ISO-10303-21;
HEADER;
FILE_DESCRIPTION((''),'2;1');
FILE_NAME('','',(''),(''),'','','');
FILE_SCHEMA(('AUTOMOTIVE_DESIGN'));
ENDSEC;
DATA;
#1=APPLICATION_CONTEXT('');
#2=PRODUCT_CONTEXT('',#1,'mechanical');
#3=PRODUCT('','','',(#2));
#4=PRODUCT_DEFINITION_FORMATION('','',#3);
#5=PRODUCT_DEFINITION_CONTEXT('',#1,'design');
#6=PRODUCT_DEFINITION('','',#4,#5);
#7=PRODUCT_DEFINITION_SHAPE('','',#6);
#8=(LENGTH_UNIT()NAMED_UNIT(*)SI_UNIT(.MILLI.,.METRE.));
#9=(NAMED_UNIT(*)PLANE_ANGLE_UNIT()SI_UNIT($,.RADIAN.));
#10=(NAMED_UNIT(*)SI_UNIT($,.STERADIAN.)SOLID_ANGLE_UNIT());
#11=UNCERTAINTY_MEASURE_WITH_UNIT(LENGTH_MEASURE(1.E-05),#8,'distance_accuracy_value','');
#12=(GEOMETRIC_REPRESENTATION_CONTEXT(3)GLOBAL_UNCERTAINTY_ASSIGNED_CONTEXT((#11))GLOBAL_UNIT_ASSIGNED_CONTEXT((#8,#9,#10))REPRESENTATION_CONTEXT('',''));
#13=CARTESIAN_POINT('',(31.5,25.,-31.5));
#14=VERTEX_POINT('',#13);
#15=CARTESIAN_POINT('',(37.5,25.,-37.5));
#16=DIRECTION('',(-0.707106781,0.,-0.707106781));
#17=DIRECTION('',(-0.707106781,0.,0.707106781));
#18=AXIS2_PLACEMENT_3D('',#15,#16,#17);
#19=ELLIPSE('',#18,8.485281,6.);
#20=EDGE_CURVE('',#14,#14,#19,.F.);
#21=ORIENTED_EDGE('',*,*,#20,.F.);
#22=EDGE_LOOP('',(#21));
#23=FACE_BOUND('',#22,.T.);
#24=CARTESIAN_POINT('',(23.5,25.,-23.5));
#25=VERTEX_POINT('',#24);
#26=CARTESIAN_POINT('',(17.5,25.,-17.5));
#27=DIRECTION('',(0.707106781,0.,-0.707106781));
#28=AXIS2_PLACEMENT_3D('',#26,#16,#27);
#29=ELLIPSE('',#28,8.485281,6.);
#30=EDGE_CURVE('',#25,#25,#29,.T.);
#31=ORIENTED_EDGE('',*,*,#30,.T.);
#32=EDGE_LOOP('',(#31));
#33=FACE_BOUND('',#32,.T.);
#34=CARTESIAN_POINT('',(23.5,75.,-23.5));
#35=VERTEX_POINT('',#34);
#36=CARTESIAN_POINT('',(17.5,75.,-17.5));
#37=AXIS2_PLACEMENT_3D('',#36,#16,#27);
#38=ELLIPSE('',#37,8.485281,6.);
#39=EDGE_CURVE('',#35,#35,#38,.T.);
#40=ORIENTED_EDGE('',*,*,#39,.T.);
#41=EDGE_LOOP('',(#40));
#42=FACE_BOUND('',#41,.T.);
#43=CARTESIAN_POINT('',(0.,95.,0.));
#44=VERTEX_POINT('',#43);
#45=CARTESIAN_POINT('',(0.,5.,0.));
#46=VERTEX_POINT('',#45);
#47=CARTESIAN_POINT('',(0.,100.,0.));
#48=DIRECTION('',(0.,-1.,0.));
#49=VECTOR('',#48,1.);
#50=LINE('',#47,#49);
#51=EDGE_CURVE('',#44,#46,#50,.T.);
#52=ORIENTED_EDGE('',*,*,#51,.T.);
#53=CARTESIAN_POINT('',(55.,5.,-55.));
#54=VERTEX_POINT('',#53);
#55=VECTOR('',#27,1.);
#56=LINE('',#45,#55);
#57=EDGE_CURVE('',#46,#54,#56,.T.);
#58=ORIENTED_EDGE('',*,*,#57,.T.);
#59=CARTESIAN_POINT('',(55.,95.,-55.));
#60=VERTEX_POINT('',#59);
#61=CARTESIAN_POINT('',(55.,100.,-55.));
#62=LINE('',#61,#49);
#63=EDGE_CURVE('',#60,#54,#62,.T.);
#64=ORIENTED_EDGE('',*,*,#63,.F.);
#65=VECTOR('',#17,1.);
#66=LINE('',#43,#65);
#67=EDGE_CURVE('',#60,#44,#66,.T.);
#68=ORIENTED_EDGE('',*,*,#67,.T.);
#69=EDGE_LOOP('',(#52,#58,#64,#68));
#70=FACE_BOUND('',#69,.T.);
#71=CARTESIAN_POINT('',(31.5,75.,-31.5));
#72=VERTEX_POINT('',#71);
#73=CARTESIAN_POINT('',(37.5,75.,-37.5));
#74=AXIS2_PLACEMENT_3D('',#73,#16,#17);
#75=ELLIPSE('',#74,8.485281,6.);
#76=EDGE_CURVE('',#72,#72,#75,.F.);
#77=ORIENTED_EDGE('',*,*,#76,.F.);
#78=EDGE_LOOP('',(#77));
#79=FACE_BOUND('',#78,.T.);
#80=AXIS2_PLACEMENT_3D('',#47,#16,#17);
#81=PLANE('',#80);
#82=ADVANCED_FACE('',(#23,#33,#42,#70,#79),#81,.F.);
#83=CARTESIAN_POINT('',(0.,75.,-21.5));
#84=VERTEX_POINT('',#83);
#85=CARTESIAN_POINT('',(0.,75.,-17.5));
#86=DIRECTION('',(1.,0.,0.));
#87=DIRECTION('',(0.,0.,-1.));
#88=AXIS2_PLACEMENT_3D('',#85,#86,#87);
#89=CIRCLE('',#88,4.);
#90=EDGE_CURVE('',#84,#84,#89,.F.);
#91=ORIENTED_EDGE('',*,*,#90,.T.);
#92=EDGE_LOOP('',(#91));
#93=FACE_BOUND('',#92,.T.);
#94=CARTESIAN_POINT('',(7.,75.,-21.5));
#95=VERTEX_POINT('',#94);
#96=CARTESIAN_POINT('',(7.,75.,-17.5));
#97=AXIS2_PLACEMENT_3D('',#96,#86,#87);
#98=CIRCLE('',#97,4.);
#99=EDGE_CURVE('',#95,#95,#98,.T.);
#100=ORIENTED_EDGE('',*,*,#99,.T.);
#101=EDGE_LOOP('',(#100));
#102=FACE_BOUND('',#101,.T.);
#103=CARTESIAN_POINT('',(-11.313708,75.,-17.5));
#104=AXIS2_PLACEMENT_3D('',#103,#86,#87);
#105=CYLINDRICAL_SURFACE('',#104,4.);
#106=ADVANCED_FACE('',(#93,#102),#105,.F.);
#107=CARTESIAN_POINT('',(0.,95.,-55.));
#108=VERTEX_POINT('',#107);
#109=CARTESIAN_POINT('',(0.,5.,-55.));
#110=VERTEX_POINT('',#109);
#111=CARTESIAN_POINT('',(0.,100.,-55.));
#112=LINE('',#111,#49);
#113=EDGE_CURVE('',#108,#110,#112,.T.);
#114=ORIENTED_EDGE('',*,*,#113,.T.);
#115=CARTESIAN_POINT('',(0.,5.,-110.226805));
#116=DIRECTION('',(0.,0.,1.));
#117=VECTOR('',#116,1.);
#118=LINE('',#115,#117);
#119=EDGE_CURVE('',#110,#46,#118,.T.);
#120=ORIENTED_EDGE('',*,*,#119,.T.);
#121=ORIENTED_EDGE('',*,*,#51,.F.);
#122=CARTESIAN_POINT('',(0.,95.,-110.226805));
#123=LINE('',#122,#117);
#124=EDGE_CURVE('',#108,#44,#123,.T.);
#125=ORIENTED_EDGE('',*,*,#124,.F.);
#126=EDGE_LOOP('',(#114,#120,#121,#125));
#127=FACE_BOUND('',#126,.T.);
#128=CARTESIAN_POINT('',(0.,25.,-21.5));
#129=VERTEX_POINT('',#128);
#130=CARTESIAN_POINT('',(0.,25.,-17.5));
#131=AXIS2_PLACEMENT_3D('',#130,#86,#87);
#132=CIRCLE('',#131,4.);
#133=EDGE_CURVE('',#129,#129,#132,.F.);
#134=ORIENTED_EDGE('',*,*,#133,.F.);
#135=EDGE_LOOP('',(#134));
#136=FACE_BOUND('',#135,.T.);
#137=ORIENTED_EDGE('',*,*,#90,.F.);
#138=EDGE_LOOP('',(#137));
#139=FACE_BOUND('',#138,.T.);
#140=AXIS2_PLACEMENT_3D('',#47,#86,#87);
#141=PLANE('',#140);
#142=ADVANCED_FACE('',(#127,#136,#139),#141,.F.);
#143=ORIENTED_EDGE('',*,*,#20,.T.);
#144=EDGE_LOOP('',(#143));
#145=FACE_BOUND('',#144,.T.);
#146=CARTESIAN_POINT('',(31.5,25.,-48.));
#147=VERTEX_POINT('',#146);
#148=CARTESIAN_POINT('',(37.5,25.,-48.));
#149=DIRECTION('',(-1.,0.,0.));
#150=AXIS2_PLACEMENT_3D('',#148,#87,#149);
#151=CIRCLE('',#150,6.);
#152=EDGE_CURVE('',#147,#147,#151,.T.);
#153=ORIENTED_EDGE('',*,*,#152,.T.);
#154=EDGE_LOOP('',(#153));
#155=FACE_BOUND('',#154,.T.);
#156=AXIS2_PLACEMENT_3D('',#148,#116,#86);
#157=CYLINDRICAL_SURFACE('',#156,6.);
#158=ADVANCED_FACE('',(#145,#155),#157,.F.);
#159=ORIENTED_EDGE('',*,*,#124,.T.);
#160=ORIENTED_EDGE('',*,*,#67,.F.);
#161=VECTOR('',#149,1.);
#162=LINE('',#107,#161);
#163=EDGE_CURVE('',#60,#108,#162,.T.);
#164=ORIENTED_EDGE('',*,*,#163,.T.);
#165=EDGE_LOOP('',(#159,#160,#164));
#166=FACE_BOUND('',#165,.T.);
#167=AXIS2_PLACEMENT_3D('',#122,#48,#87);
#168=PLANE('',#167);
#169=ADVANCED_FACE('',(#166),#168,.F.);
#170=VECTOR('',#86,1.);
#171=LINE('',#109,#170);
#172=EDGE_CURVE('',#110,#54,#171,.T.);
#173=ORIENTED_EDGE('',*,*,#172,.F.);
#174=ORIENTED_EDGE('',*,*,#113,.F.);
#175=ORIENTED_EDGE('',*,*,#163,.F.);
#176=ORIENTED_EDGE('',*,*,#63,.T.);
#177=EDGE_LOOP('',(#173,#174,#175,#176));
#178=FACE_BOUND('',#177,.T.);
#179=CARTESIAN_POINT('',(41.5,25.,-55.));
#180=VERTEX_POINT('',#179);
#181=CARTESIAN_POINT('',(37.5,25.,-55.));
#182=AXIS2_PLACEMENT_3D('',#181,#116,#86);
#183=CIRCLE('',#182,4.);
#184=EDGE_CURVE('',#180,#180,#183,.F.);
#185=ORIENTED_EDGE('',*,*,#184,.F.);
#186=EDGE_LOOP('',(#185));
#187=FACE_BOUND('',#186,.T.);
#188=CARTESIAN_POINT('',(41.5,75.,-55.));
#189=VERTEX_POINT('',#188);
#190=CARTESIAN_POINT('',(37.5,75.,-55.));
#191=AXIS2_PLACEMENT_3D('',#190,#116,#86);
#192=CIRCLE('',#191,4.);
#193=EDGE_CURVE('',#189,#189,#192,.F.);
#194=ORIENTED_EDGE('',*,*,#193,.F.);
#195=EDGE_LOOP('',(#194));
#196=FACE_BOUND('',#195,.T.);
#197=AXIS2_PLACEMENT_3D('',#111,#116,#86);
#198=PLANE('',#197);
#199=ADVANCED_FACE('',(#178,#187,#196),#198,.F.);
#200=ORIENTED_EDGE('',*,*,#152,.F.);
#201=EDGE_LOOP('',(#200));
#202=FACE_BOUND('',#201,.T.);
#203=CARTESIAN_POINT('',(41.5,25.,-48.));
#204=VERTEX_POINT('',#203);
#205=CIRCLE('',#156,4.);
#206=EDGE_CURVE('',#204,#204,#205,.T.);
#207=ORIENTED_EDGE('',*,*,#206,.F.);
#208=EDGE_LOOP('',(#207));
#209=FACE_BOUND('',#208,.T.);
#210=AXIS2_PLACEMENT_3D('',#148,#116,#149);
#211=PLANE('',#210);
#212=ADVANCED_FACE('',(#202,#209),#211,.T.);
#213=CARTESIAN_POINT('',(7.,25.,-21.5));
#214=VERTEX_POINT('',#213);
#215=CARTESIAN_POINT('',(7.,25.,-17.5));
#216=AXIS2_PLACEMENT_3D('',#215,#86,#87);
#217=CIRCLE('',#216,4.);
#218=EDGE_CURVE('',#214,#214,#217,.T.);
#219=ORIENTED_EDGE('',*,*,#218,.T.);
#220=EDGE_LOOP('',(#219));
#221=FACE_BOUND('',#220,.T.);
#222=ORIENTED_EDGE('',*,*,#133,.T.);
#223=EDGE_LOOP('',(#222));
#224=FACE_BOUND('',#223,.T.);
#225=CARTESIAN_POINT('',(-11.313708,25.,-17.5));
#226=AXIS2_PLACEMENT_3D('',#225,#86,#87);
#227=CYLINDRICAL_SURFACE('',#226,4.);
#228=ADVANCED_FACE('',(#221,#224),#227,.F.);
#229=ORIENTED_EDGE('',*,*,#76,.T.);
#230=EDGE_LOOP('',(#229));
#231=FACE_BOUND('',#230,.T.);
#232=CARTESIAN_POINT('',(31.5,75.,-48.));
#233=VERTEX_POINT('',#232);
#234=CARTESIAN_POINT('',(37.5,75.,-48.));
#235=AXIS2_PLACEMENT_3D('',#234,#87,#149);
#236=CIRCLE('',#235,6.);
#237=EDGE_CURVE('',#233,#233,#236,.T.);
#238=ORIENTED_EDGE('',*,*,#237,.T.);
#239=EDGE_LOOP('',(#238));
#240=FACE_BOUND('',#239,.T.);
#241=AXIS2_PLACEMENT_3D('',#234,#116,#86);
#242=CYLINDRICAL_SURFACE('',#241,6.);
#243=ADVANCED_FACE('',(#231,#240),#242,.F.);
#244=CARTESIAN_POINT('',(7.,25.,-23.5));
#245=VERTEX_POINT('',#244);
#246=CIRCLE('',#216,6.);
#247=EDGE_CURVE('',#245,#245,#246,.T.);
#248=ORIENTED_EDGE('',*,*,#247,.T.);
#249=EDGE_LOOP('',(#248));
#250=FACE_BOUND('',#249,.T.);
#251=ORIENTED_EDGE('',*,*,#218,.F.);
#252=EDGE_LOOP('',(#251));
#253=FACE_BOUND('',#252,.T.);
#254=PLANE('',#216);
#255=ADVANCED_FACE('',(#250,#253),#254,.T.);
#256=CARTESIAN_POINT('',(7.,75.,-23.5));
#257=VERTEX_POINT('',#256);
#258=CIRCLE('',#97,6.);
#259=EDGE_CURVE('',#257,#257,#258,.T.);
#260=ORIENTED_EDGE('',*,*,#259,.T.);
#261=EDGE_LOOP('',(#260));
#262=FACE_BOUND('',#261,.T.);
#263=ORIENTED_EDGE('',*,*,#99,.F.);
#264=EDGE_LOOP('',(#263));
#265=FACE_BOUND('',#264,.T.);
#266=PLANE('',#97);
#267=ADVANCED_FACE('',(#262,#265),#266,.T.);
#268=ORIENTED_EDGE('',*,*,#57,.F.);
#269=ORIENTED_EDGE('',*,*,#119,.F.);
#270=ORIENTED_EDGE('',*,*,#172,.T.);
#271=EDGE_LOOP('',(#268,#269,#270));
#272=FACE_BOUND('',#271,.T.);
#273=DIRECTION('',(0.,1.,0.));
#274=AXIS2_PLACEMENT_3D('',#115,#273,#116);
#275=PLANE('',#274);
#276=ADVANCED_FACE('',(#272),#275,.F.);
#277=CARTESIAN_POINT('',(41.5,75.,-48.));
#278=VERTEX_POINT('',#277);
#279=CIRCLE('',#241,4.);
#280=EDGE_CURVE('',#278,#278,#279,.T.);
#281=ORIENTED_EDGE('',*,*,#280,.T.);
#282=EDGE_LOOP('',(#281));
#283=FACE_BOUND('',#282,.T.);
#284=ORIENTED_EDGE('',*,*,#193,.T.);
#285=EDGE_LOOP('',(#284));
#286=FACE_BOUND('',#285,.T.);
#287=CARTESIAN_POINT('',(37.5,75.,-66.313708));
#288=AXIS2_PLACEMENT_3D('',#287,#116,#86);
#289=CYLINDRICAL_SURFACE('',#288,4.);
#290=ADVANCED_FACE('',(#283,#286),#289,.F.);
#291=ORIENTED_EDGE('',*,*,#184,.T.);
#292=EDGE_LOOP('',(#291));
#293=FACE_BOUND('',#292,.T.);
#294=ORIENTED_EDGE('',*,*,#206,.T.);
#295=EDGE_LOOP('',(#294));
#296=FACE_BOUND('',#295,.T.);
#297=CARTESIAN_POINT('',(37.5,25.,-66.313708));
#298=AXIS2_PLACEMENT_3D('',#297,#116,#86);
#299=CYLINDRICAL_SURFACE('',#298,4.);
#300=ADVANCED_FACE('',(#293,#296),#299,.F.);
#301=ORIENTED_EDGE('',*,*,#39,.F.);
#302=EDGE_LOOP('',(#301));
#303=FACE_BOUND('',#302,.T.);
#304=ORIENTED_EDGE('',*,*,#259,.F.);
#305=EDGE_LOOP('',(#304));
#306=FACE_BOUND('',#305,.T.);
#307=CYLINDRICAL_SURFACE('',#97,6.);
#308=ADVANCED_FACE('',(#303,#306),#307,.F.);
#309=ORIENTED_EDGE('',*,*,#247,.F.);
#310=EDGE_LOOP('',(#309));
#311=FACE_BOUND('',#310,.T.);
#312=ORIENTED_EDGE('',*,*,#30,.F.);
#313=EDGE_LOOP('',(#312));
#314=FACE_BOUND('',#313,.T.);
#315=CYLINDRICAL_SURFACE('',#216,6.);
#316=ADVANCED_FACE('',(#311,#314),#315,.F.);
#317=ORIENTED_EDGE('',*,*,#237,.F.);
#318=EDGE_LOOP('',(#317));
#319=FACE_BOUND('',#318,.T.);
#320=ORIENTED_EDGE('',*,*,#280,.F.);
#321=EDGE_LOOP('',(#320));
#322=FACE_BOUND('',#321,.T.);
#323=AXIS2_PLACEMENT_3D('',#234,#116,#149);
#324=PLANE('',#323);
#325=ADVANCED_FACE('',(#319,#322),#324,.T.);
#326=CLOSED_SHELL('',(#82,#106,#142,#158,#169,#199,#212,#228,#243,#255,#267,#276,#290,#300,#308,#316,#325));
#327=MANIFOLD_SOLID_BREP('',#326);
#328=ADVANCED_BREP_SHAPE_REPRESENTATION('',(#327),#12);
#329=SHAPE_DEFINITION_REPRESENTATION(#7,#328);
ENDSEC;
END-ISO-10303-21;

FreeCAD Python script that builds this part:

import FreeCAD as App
import Part
import Sketcher
Q = App.Units.Quantity

doc = App.newDocument("Part")
body = doc.addObject("PartDesign::Body", "Body")

# Sketch on XZ plane
sketch1 = body.newObject("Sketcher::SketchObject", "Sketch")
sketch1.AttachmentSupport = (doc.getObject("XZ_Plane"), [""])
sketch1.MapMode = "FlatFace"
sketch1.addGeometry([
    Part.LineSegment(App.Vector(0, 0, 0), App.Vector(55, -55, 0)),
    Part.LineSegment(App.Vector(55, -55, 0), App.Vector(0, -55, 0)),
    Part.LineSegment(App.Vector(0, -55, 0), App.Vector(0, 0, 0)),
], False)
sketch1.addConstraint([
    Sketcher.Constraint("Coincident", 0, 2, 1, 1),
    Sketcher.Constraint("Coincident", 1, 2, 2, 1),
    Sketcher.Constraint("Coincident", 2, 2, 0, 1),
    Sketcher.Constraint("Horizontal", 1),
    Sketcher.Constraint("Vertical", 2),
    Sketcher.Constraint("Coincident", 2, 2, -1, 1),
    Sketcher.Constraint("Equal", 1, 2),
    Sketcher.Constraint("DistanceX", 1, 2, 1, 1, Q("55 mm")),
])
pad1 = body.newObject("PartDesign::Pad", "Pad")
pad1.Profile = sketch1
pad1.Length = 100
pad1.Reversed = True

# Sketch on YZ plane
sketch2 = body.newObject("Sketcher::SketchObject", "Sketch001")
sketch2.AttachmentSupport = (doc.getObject("YZ_Plane"), [""])
sketch2.MapMode = "FlatFace"
sketch2.AttachmentOffset = App.Placement(App.Vector(0, 0, 50), App.Rotation())
sketch2.addGeometry([
    Part.Circle(App.Vector(25, -17.5, 0), App.Vector(0, 0, 1), 6),
    Part.Circle(App.Vector(75, -17.5, 0), App.Vector(0, 0, 1), 6),
], False)
sketch2.addConstraint([
    Sketcher.Constraint("Equal", 0, 1),
    Sketcher.Constraint("Horizontal", 0, 3, 1, 3),
    Sketcher.Constraint("Diameter", 0, Q("12 mm")),
    Sketcher.Constraint("DistanceX", -1, 1, 0, 3, Q("25 mm")),
    Sketcher.Constraint("DistanceX", -1, 1, 1, 3, Q("75 mm")),
    Sketcher.Constraint("DistanceY", 0, 3, -1, 1, Q("17.5 mm")),
])
pocket1 = body.newObject("PartDesign::Pocket", "Pocket")
pocket1.Profile = sketch2
pocket1.Length = 43

# Sketch on YZ plane
sketch3 = body.newObject("Sketcher::SketchObject", "Sketch002")
sketch3.AttachmentSupport = (doc.getObject("YZ_Plane"), [""])
sketch3.MapMode = "FlatFace"
sketch3.AttachmentOffset = App.Placement(App.Vector(0, 0, 7), App.Rotation())
sketch3.addGeometry([
    Part.Circle(App.Vector(75, -17.5, 0), App.Vector(0, 0, 1), 4),
    Part.Circle(App.Vector(25, -17.5, 0), App.Vector(0, 0, 1), 4),
], False)
sketch3.addConstraint([
    Sketcher.Constraint("Equal", 0, 1),
    Sketcher.Constraint("Horizontal", 0, 3, 1, 3),
    Sketcher.Constraint("Diameter", 0, Q("8 mm")),
    Sketcher.Constraint("DistanceX", -1, 1, 0, 3, Q("75 mm")),
    Sketcher.Constraint("DistanceX", -1, 1, 1, 3, Q("25 mm")),
    Sketcher.Constraint("DistanceY", 0, 3, -1, 1, Q("17.5 mm")),
])
pocket2 = body.newObject("PartDesign::Pocket", "Pocket001")
pocket2.Profile = sketch3
pocket2.Length = 7
doc.recompute()

datumplane = body.newObject("PartDesign::Plane", "DatumPlane")
datumplane.Placement = App.Placement(App.Vector(27.5, 0, -27.5), App.Rotation(App.Vector(-0.707106781, 0, -0.707106781), App.Vector(0, -1, 0), App.Vector(-0.707106781, 0, 0.707106781), "ZXY"))
mirrored = body.newObject("PartDesign::Mirrored", "Mirrored")
mirrored.Originals = [pocket1]
mirrored.MirrorPlane = (datumplane, [""])
body.Tip = mirrored

# Sketch on XY plane
sketch4 = body.newObject("Sketcher::SketchObject", "Sketch003")
sketch4.AttachmentSupport = (doc.getObject("XY_Plane"), [""])
sketch4.MapMode = "FlatFace"
sketch4.AttachmentOffset = App.Placement(App.Vector(0, 0, -48), App.Rotation())
sketch4.addGeometry([
    Part.Circle(App.Vector(37.5, 75, 0), App.Vector(0, 0, 1), 4),
    Part.Circle(App.Vector(37.5, 25, 0), App.Vector(0, 0, 1), 4),
], False)
sketch4.addConstraint([
    Sketcher.Constraint("Equal", 0, 1),
    Sketcher.Constraint("Vertical", 0, 3, 1, 3),
    Sketcher.Constraint("Diameter", 0, Q("8 mm")),
    Sketcher.Constraint("DistanceY", -1, 1, 0, 3, Q("75 mm")),
    Sketcher.Constraint("DistanceY", -1, 1, 1, 3, Q("25 mm")),
    Sketcher.Constraint("DistanceX", -1, 1, 0, 3, Q("37.5 mm")),
])
pocket3 = body.newObject("PartDesign::Pocket", "Pocket002")
pocket3.Profile = sketch4
pocket3.Length = 7

# Sketch on XY plane
sketch5 = body.newObject("Sketcher::SketchObject", "Sketch004")
sketch5.AttachmentSupport = (doc.getObject("XY_Plane"), [""])
sketch5.MapMode = "FlatFace"
sketch5.addGeometry([
    Part.LineSegment(App.Vector(0, 100, 0), App.Vector(0, 95, 0)),  # 0
    Part.LineSegment(App.Vector(0, 95, 0), App.Vector(55, 95, 0)),  # 1
    Part.LineSegment(App.Vector(55, 95, 0), App.Vector(55, 100, 0)),  # 2
    Part.LineSegment(App.Vector(55, 100, 0), App.Vector(0, 100, 0)),  # 3
    Part.LineSegment(App.Vector(0, 5, 0), App.Vector(0, 0, 0)),  # 4
    Part.LineSegment(App.Vector(0, 0, 0), App.Vector(55, 0, 0)),  # 5
    Part.LineSegment(App.Vector(55, 0, 0), App.Vector(55, 5, 0)),  # 6
    Part.LineSegment(App.Vector(55, 5, 0), App.Vector(0, 5, 0)),  # 7
], False)
sketch5.addConstraint([
    Sketcher.Constraint("Coincident", 0, 2, 1, 1),
    Sketcher.Constraint("Coincident", 1, 2, 2, 1),
    Sketcher.Constraint("Coincident", 2, 2, 3, 1),
    Sketcher.Constraint("Coincident", 3, 2, 0, 1),
    Sketcher.Constraint("Coincident", 4, 2, 5, 1),
    Sketcher.Constraint("Coincident", 5, 2, 6, 1),
    Sketcher.Constraint("Coincident", 6, 2, 7, 1),
    Sketcher.Constraint("Coincident", 7, 2, 4, 1),
    Sketcher.Constraint("Vertical", 0),
    Sketcher.Constraint("Horizontal", 1),
    Sketcher.Constraint("Vertical", 2),
    Sketcher.Constraint("Horizontal", 3),
    Sketcher.Constraint("Vertical", 4),
    Sketcher.Constraint("Horizontal", 5),
    Sketcher.Constraint("Vertical", 6),
    Sketcher.Constraint("Horizontal", 7),
    Sketcher.Constraint("Coincident", 4, 2, -1, 1),
    Sketcher.Constraint("PointOnObject", 0, 2, -2),
    Sketcher.Constraint("Vertical", 2, 2, 5, 2),
    Sketcher.Constraint("Equal", 2, 4),
    Sketcher.Constraint("DistanceX", 1, 1, 1, 2, Q("55 mm")),
    Sketcher.Constraint("DistanceY", 0, 2, 0, 1, Q("5 mm")),
    Sketcher.Constraint("DistanceY", -1, 1, 0, 2, Q("95 mm")),
])
pocket4 = body.newObject("PartDesign::Pocket", "Pocket003")
pocket4.Profile = sketch5
pocket4.Length = 55

doc.recompute()
